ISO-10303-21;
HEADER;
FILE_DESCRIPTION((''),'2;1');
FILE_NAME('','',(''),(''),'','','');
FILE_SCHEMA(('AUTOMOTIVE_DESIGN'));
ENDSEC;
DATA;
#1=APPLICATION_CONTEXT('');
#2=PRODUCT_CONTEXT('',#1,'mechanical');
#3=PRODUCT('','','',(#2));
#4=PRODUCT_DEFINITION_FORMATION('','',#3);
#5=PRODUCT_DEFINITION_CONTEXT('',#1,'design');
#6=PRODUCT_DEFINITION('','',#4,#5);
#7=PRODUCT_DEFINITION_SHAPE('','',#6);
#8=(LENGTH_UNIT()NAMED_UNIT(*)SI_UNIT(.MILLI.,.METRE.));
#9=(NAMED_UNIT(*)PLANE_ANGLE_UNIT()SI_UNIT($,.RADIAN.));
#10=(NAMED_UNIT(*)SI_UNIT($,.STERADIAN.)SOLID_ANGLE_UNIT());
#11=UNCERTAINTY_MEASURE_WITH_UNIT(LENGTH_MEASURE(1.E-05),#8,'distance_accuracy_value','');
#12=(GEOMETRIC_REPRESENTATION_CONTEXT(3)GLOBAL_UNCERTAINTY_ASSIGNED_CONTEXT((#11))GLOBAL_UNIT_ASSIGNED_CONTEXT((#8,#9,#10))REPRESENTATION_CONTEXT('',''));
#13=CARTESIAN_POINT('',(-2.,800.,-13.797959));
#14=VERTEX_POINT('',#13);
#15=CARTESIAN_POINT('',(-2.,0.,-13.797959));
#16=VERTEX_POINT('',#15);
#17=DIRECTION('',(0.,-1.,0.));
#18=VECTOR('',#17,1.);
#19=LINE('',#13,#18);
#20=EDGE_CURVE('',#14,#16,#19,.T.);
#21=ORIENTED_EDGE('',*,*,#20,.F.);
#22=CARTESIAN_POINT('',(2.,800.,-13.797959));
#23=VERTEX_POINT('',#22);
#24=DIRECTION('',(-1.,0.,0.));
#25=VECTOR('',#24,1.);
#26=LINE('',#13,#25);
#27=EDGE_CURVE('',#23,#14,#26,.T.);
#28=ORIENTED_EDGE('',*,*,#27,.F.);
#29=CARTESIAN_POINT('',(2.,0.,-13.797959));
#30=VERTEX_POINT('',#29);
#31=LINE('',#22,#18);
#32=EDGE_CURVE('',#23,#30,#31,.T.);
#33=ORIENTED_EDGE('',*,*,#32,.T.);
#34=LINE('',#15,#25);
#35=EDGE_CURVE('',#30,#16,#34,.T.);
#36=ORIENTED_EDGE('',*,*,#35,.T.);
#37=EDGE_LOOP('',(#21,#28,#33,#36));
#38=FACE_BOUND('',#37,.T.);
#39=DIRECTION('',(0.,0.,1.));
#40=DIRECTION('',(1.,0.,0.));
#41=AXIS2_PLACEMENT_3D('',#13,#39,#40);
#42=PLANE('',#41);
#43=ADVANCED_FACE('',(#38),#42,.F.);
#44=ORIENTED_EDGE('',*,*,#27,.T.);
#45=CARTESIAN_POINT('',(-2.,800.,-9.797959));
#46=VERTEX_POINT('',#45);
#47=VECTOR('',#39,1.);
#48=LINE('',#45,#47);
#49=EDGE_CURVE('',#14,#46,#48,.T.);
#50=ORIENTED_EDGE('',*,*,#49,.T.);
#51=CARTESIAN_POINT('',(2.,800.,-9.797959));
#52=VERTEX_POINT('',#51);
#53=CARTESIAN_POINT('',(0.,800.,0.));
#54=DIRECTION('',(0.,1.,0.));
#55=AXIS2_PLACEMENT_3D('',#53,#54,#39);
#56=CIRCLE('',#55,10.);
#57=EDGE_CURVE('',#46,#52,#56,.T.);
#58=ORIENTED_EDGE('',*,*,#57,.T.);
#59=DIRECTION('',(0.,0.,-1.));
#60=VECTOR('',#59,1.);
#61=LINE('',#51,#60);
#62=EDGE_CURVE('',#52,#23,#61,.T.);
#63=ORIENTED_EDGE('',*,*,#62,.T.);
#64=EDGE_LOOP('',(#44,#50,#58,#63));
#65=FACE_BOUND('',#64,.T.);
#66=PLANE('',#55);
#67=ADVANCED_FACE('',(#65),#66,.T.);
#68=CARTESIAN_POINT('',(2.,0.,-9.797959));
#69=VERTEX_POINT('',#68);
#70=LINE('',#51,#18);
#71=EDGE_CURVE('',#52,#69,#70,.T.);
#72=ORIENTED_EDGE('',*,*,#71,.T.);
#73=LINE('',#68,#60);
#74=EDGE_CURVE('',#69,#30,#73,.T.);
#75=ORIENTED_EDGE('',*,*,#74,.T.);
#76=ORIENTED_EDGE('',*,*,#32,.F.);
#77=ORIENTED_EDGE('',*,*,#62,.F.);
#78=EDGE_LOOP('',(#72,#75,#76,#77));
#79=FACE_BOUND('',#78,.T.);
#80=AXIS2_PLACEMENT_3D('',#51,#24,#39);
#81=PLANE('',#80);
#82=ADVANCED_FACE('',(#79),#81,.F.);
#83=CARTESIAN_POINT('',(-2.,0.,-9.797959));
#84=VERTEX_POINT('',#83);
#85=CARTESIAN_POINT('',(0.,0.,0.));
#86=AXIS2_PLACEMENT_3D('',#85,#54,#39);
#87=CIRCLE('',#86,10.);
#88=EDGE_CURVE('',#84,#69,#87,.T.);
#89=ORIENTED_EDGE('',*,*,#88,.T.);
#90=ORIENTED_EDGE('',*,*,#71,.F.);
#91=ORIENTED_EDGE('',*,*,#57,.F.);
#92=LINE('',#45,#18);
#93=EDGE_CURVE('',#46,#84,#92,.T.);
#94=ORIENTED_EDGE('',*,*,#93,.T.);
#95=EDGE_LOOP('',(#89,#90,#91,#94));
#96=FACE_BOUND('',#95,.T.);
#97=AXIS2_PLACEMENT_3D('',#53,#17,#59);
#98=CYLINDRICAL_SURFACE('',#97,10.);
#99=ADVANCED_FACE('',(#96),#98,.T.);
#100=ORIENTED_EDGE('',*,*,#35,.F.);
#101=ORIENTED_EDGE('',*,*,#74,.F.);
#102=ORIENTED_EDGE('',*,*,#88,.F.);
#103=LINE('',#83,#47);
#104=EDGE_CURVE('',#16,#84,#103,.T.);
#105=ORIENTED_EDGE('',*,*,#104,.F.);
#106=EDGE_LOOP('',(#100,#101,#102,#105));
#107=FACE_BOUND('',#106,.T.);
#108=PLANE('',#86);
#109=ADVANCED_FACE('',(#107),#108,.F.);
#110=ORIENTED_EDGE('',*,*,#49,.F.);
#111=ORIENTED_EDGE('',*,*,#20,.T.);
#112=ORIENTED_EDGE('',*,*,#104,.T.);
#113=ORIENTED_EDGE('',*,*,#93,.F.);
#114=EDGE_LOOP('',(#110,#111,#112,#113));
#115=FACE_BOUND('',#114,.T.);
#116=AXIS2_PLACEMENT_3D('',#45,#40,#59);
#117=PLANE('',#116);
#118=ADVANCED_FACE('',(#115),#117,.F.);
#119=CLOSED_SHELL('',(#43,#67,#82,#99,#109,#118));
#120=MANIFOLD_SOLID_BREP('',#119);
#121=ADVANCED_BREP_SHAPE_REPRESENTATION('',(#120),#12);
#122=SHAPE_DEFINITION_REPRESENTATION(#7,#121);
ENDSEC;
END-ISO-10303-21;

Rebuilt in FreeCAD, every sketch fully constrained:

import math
import FreeCAD as App
import Part
import Sketcher
Q = App.Units.Quantity

doc = App.newDocument("Part")
body = doc.addObject("PartDesign::Body", "Body")

# Sketch on XZ plane
sketch1 = doc.addObject("Sketcher::SketchObject", "Sketch")
body.addObject(sketch1)
sketch1.AttachmentSupport = (doc.XZ_Plane, [""])
sketch1.MapMode = "FlatFace"
sketch1.addGeometry([
    Part.LineSegment(App.Vector(-2, -13.8, 0), App.Vector(-2, -9.8, 0)),
    Part.ArcOfCircle(Part.Circle(App.Vector(0, 0, 0), App.Vector(0, 0, 1), 10), math.radians(-78), math.radians(258)),
    Part.LineSegment(App.Vector(2, -9.8, 0), App.Vector(2, -13.8, 0)),
    Part.LineSegment(App.Vector(2, -13.8, 0), App.Vector(-2, -13.8, 0)),
], False)
sketch1.addConstraint([
    Sketcher.Constraint("Coincident", 0, 2, 1, 2),
    Sketcher.Constraint("Coincident", 1, 1, 2, 1),
    Sketcher.Constraint("Coincident", 2, 2, 3, 1),
    Sketcher.Constraint("Coincident", 3, 2, 0, 1),
    Sketcher.Constraint("Vertical", 0),
    Sketcher.Constraint("Vertical", 2),
    Sketcher.Constraint("Horizontal", 3),
    Sketcher.Constraint("Coincident", 1, 3, -1, 1),
    Sketcher.Constraint("Horizontal", 0, 2, 1, 1),
    Sketcher.Constraint("Equal", 3, 0),
    Sketcher.Constraint("Radius", 1, Q("10 mm")),
    Sketcher.Constraint("DistanceX", 3, 2, 3, 1, Q("4 mm")),
])
pad1 = doc.addObject("PartDesign::Pad", "Pad")
body.addObject(pad1)
pad1.Profile = sketch1
pad1.Length = 800
pad1.Reversed = True

doc.recompute()
